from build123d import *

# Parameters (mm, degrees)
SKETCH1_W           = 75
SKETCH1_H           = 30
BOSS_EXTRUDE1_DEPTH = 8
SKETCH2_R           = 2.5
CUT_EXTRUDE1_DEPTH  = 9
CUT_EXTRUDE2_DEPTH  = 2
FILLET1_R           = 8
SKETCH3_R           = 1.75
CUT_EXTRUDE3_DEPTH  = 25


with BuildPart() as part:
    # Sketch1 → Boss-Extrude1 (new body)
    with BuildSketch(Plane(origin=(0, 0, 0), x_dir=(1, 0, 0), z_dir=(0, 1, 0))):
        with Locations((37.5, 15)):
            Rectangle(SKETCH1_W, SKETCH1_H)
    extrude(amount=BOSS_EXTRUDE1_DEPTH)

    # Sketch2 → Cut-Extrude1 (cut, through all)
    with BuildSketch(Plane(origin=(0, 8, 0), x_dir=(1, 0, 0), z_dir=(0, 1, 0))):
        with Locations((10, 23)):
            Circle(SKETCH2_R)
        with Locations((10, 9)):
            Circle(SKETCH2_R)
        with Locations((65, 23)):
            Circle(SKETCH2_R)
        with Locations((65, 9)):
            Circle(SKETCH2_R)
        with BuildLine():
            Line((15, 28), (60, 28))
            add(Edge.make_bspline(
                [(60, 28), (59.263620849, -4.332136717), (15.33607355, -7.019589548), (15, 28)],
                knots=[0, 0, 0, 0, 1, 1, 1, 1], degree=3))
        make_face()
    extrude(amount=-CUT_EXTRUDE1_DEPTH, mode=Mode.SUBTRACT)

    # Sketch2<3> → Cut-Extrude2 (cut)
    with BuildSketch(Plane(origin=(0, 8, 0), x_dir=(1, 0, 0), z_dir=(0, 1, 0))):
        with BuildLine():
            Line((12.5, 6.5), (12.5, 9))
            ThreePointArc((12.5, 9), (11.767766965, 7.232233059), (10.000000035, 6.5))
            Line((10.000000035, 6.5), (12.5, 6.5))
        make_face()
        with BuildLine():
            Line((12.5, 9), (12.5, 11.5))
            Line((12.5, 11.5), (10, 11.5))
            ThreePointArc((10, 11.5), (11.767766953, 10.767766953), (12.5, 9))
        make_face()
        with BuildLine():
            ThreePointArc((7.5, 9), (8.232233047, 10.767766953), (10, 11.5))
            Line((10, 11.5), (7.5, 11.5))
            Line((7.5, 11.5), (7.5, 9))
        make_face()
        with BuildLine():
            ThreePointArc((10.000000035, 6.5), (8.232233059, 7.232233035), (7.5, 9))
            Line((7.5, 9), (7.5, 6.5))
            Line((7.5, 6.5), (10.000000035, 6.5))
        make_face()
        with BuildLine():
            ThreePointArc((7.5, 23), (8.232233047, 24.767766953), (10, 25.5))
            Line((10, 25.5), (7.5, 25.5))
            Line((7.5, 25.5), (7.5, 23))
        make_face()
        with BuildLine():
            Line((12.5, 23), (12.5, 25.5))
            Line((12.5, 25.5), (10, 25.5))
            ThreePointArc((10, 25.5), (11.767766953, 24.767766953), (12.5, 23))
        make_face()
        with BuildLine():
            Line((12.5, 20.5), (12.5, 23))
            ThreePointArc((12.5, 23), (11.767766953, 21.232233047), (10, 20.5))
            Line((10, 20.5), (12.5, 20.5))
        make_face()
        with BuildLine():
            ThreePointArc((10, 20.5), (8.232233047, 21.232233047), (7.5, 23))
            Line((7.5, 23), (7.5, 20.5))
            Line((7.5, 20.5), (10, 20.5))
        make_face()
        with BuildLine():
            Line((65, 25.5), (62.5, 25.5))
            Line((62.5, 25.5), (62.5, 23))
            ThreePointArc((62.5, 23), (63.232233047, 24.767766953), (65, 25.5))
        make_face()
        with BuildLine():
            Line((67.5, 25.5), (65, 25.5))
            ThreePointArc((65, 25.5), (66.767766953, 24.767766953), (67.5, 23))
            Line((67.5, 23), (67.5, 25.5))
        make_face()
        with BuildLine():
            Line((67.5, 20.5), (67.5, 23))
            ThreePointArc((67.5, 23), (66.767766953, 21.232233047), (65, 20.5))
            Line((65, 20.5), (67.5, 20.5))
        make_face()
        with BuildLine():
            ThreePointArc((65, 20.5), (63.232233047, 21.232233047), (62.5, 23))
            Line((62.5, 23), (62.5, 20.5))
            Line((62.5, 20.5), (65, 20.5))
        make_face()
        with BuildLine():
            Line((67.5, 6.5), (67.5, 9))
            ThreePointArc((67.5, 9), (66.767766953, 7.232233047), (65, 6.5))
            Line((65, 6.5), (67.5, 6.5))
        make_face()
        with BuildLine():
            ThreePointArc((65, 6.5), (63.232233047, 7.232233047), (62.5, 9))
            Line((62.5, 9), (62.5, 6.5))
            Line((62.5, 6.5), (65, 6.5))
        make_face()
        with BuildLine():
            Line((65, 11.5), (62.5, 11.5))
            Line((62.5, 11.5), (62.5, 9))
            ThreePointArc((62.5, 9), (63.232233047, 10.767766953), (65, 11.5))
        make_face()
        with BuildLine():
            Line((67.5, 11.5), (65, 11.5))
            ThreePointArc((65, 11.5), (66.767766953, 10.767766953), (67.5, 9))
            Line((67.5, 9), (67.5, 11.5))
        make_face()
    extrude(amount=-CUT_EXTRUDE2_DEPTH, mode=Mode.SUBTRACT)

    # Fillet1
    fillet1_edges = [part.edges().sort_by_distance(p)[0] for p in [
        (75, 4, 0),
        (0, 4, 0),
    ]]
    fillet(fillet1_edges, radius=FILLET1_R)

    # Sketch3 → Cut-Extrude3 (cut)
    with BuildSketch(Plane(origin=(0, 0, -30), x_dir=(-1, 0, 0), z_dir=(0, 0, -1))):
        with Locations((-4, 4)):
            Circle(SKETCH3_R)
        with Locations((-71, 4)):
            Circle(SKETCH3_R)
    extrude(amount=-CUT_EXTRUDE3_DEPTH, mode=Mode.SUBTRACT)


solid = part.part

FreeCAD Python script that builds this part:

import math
import FreeCAD as App
import Part
import Sketcher
Q = App.Units.Quantity


def edges_at(feature, points):
    """Names of the edges that pass closest to the given points."""
    edges = feature.Shape.Edges
    near = lambda p: min(range(len(edges)), key=lambda i: edges[i].distToShape(Part.Vertex(*p))[0])
    return sorted({f"Edge{near(p) + 1}" for p in points})


def add_polygon(sketch, points):
    """Adds a closed chain of lines whose ends are joined by coincident constraints."""
    first, n = sketch.GeometryCount, len(points)
    for a, b in zip(points, points[1:] + points[:1]):
        sketch.addGeometry(Part.LineSegment(App.Vector(*a, 0), App.Vector(*b, 0)), False)
    for i in range(n):
        sketch.addConstraint(Sketcher.Constraint("Coincident", first + i, 2, first + (i + 1) % n, 1))

doc = App.newDocument("Part")
body = doc.addObject("PartDesign::Body", "Body")

# Sketch on XZ plane
sketch1 = doc.addObject("Sketcher::SketchObject", "Sketch")
body.addObject(sketch1)
sketch1.AttachmentSupport = (doc.XZ_Plane, [""])
sketch1.MapMode = "FlatFace"
add_polygon(sketch1, [(0, -30), (0, 0), (75, 0), (75, -30)])  # lines 0-3
sketch1.addConstraint([
    Sketcher.Constraint("Vertical", 0),
    Sketcher.Constraint("Horizontal", 1),
    Sketcher.Constraint("Vertical", 2),
    Sketcher.Constraint("Horizontal", 3),
    Sketcher.Constraint("Coincident", 0, 2, -1, 1),
    Sketcher.Constraint("DistanceX", 1, 1, 1, 2, Q("75 mm")),
    Sketcher.Constraint("DistanceY", 0, 1, 0, 2, Q("30 mm")),
])
pad1 = doc.addObject("PartDesign::Pad", "Pad")
body.addObject(pad1)
pad1.Profile = sketch1
pad1.Length = 8
pad1.Reversed = True

# Sketch on XZ plane
sketch2 = doc.addObject("Sketcher::SketchObject", "Sketch001")
body.addObject(sketch2)
sketch2.AttachmentSupport = (doc.XZ_Plane, [""])
sketch2.MapMode = "FlatFace"
sketch2.AttachmentOffset = App.Placement(App.Vector(0, 0, -8), App.Rotation())
sketch2.addGeometry([
    Part.Circle(App.Vector(10, -23, 0), App.Vector(0, 0, 1), 2.5),  # 0
    Part.Circle(App.Vector(10, -9, 0), App.Vector(0, 0, 1), 2.5),  # 1
    Part.Circle(App.Vector(65, -23, 0), App.Vector(0, 0, 1), 2.5),  # 2
    Part.Circle(App.Vector(65, -9, 0), App.Vector(0, 0, 1), 2.5),  # 3
    Part.LineSegment(App.Vector(60, -28, 0), App.Vector(15, -28, 0)),  # 4
    Part.BSplineCurve([App.Vector(60, -28, 0), App.Vector(59.263621, 4.332137, 0), App.Vector(15.336074, 7.01959, 0), App.Vector(15, -28, 0)], [4, 4], [0, 1], False, 3, [1, 1, 1, 1], False),  # 5
], False)
sketch2.addConstraint([
    Sketcher.Constraint("Block", 5),
    Sketcher.Constraint("Coincident", 4, 1, 5, 1),
    Sketcher.Constraint("Coincident", 5, 2, 4, 2),
    Sketcher.Constraint("Equal", 0, 1),
    Sketcher.Constraint("Equal", 1, 2),
    Sketcher.Constraint("Equal", 2, 3),
    Sketcher.Constraint("Horizontal", 0, 3, 2, 3),
    Sketcher.Constraint("Horizontal", 1, 3, 3, 3),
    Sketcher.Constraint("Vertical", 0, 3, 1, 3),
    Sketcher.Constraint("Vertical", 2, 3, 3, 3),
    Sketcher.Constraint("Diameter", 0, Q("5 mm")),
    Sketcher.Constraint("DistanceX", -1, 1, 0, 3, Q("10 mm")),
    Sketcher.Constraint("DistanceY", 0, 3, -1, 1, Q("23 mm")),
    Sketcher.Constraint("DistanceY", 1, 3, -1, 1, Q("9 mm")),
    Sketcher.Constraint("DistanceX", -1, 1, 2, 3, Q("65 mm")),
])
pocket1 = doc.addObject("PartDesign::Pocket", "Pocket")
body.addObject(pocket1)
pocket1.Profile = sketch2
pocket1.Type = "ThroughAll"
pocket1.Reversed = True

# Sketch on XZ plane
sketch3 = doc.addObject("Sketcher::SketchObject", "Sketch002")
body.addObject(sketch3)
sketch3.AttachmentSupport = (doc.XZ_Plane, [""])
sketch3.MapMode = "FlatFace"
sketch3.AttachmentOffset = App.Placement(App.Vector(0, 0, -8), App.Rotation())
sketch3.addGeometry([
    Part.LineSegment(App.Vector(12.5, -6.5, 0), App.Vector(12.5, -9, 0)),  # 0
    Part.ArcOfCircle(Part.Circle(App.Vector(10, -9, 0), App.Vector(0, 0, 1), 2.5), math.radians(0), math.radians(90)),  # 1
    Part.LineSegment(App.Vector(10, -6.5, 0), App.Vector(12.5, -6.5, 0)),  # 2
    Part.LineSegment(App.Vector(12.5, -9, 0), App.Vector(12.5, -11.5, 0)),  # 3
    Part.LineSegment(App.Vector(12.5, -11.5, 0), App.Vector(10, -11.5, 0)),  # 4
    Part.ArcOfCircle(Part.Circle(App.Vector(10, -9, 0), App.Vector(0, 0, 1), 2.5), math.radians(-90), math.radians(0)),  # 5
    Part.ArcOfCircle(Part.Circle(App.Vector(10, -9, 0), App.Vector(0, 0, 1), 2.5), math.radians(180), math.radians(270)),  # 6
    Part.LineSegment(App.Vector(10, -11.5, 0), App.Vector(7.5, -11.5, 0)),  # 7
    Part.LineSegment(App.Vector(7.5, -11.5, 0), App.Vector(7.5, -9, 0)),  # 8
    Part.ArcOfCircle(Part.Circle(App.Vector(10, -9, 0), App.Vector(0, 0, 1), 2.5), math.radians(90), math.radians(180)),  # 9
    Part.LineSegment(App.Vector(7.5, -9, 0), App.Vector(7.5, -6.5, 0)),  # 10
    Part.LineSegment(App.Vector(7.5, -6.5, 0), App.Vector(10, -6.5, 0)),  # 11
    Part.ArcOfCircle(Part.Circle(App.Vector(10, -23, 0), App.Vector(0, 0, 1), 2.5), math.radians(180), math.radians(270)),  # 12
    Part.LineSegment(App.Vector(10, -25.5, 0), App.Vector(7.5, -25.5, 0)),  # 13
    Part.LineSegment(App.Vector(7.5, -25.5, 0), App.Vector(7.5, -23, 0)),  # 14
    Part.LineSegment(App.Vector(12.5, -23, 0), App.Vector(12.5, -25.5, 0)),  # 15
    Part.LineSegment(App.Vector(12.5, -25.5, 0), App.Vector(10, -25.5, 0)),  # 16
    Part.ArcOfCircle(Part.Circle(App.Vector(10, -23, 0), App.Vector(0, 0, 1), 2.5), math.radians(-90), math.radians(0)),  # 17
    Part.LineSegment(App.Vector(12.5, -20.5, 0), App.Vector(12.5, -23, 0)),  # 18
    Part.ArcOfCircle(Part.Circle(App.Vector(10, -23, 0), App.Vector(0, 0, 1), 2.5), math.radians(0), math.radians(90)),  # 19
    Part.LineSegment(App.Vector(10, -20.5, 0), App.Vector(12.5, -20.5, 0)),  # 20
    Part.ArcOfCircle(Part.Circle(App.Vector(10, -23, 0), App.Vector(0, 0, 1), 2.5), math.radians(90), math.radians(180)),  # 21
    Part.LineSegment(App.Vector(7.5, -23, 0), App.Vector(7.5, -20.5, 0)),  # 22
    Part.LineSegment(App.Vector(7.5, -20.5, 0), App.Vector(10, -20.5, 0)),  # 23
    Part.LineSegment(App.Vector(65, -25.5, 0), App.Vector(62.5, -25.5, 0)),  # 24
    Part.LineSegment(App.Vector(62.5, -25.5, 0), App.Vector(62.5, -23, 0)),  # 25
    Part.ArcOfCircle(Part.Circle(App.Vector(65, -23, 0), App.Vector(0, 0, 1), 2.5), math.radians(180), math.radians(270)),  # 26
    Part.LineSegment(App.Vector(67.5, -25.5, 0), App.Vector(65, -25.5, 0)),  # 27
    Part.ArcOfCircle(Part.Circle(App.Vector(65, -23, 0), App.Vector(0, 0, 1), 2.5), math.radians(-90), math.radians(0)),  # 28
    Part.LineSegment(App.Vector(67.5, -23, 0), App.Vector(67.5, -25.5, 0)),  # 29
    Part.LineSegment(App.Vector(67.5, -20.5, 0), App.Vector(67.5, -23, 0)),  # 30
    Part.ArcOfCircle(Part.Circle(App.Vector(65, -23, 0), App.Vector(0, 0, 1), 2.5), math.radians(0), math.radians(90)),  # 31
    Part.LineSegment(App.Vector(65, -20.5, 0), App.Vector(67.5, -20.5, 0)),  # 32
    Part.ArcOfCircle(Part.Circle(App.Vector(65, -23, 0), App.Vector(0, 0, 1), 2.5), math.radians(90), math.radians(180)),  # 33
    Part.LineSegment(App.Vector(62.5, -23, 0), App.Vector(62.5, -20.5, 0)),  # 34
    Part.LineSegment(App.Vector(62.5, -20.5, 0), App.Vector(65, -20.5, 0)),  # 35
    Part.LineSegment(App.Vector(67.5, -6.5, 0), App.Vector(67.5, -9, 0)),  # 36
    Part.ArcOfCircle(Part.Circle(App.Vector(65, -9, 0), App.Vector(0, 0, 1), 2.5), math.radians(0), math.radians(90)),  # 37
    Part.LineSegment(App.Vector(65, -6.5, 0), App.Vector(67.5, -6.5, 0)),  # 38
    Part.ArcOfCircle(Part.Circle(App.Vector(65, -9, 0), App.Vector(0, 0, 1), 2.5), math.radians(90), math.radians(180)),  # 39
    Part.LineSegment(App.Vector(62.5, -9, 0), App.Vector(62.5, -6.5, 0)),  # 40
    Part.LineSegment(App.Vector(62.5, -6.5, 0), App.Vector(65, -6.5, 0)),  # 41
    Part.LineSegment(App.Vector(65, -11.5, 0), App.Vector(62.5, -11.5, 0)),  # 42
    Part.LineSegment(App.Vector(62.5, -11.5, 0), App.Vector(62.5, -9, 0)),  # 43
    Part.ArcOfCircle(Part.Circle(App.Vector(65, -9, 0), App.Vector(0, 0, 1), 2.5), math.radians(180), math.radians(270)),  # 44
    Part.LineSegment(App.Vector(67.5, -11.5, 0), App.Vector(65, -11.5, 0)),  # 45
    Part.ArcOfCircle(Part.Circle(App.Vector(65, -9, 0), App.Vector(0, 0, 1), 2.5), math.radians(-90), math.radians(0)),  # 46
    Part.LineSegment(App.Vector(67.5, -9, 0), App.Vector(67.5, -11.5, 0)),  # 47
], False)
sketch3.addConstraint([
    Sketcher.Constraint("Tangent", 0, 2, 1, 1),
    Sketcher.Constraint("Tangent", 1, 2, 2, 1),
    Sketcher.Constraint("Coincident", 2, 2, 0, 1),
    Sketcher.Constraint("Coincident", 3, 2, 4, 1),
    Sketcher.Constraint("Tangent", 4, 2, 5, 1),
    Sketcher.Constraint("Tangent", 5, 2, 3, 1),
    Sketcher.Constraint("Tangent", 6, 2, 7, 1),
    Sketcher.Constraint("Coincident", 7, 2, 8, 1),
    Sketcher.Constraint("Tangent", 8, 2, 6, 1),
    Sketcher.Constraint("Tangent", 9, 2, 10, 1),
    Sketcher.Constraint("Coincident", 10, 2, 11, 1),
    Sketcher.Constraint("Tangent", 11, 2, 9, 1),
    Sketcher.Constraint("Tangent", 12, 2, 13, 1),
    Sketcher.Constraint("Coincident", 13, 2, 14, 1),
    Sketcher.Constraint("Tangent", 14, 2, 12, 1),
    Sketcher.Constraint("Coincident", 15, 2, 16, 1),
    Sketcher.Constraint("Tangent", 16, 2, 17, 1),
    Sketcher.Constraint("Tangent", 17, 2, 15, 1),
    Sketcher.Constraint("Tangent", 18, 2, 19, 1),
    Sketcher.Constraint("Tangent", 19, 2, 20, 1),
    Sketcher.Constraint("Coincident", 20, 2, 18, 1),
    Sketcher.Constraint("Tangent", 21, 2, 22, 1),
    Sketcher.Constraint("Coincident", 22, 2, 23, 1),
    Sketcher.Constraint("Tangent", 23, 2, 21, 1),
    Sketcher.Constraint("Coincident", 24, 2, 25, 1),
    Sketcher.Constraint("Tangent", 25, 2, 26, 1),
    Sketcher.Constraint("Tangent", 26, 2, 24, 1),
    Sketcher.Constraint("Tangent", 27, 2, 28, 1),
    Sketcher.Constraint("Tangent", 28, 2, 29, 1),
    Sketcher.Constraint("Coincident", 29, 2, 27, 1),
    Sketcher.Constraint("Tangent", 30, 2, 31, 1),
    Sketcher.Constraint("Tangent", 31, 2, 32, 1),
    Sketcher.Constraint("Coincident", 32, 2, 30, 1),
    Sketcher.Constraint("Tangent", 33, 2, 34, 1),
    Sketcher.Constraint("Coincident", 34, 2, 35, 1),
    Sketcher.Constraint("Tangent", 35, 2, 33, 1),
    Sketcher.Constraint("Tangent", 36, 2, 37, 1),
    Sketcher.Constraint("Tangent", 37, 2, 38, 1),
    Sketcher.Constraint("Coincident", 38, 2, 36, 1),
    Sketcher.Constraint("Tangent", 39, 2, 40, 1),
    Sketcher.Constraint("Coincident", 40, 2, 41, 1),
    Sketcher.Constraint("Tangent", 41, 2, 39, 1),
    Sketcher.Constraint("Coincident", 42, 2, 43, 1),
    Sketcher.Constraint("Tangent", 43, 2, 44, 1),
    Sketcher.Constraint("Tangent", 44, 2, 42, 1),
    Sketcher.Constraint("Tangent", 45, 2, 46, 1),
    Sketcher.Constraint("Tangent", 46, 2, 47, 1),
    Sketcher.Constraint("Coincident", 47, 2, 45, 1),
    Sketcher.Constraint("Vertical", 0),
    Sketcher.Constraint("Horizontal", 2),
    Sketcher.Constraint("Vertical", 3),
    Sketcher.Constraint("Horizontal", 4),
    Sketcher.Constraint("Horizontal", 7),
    Sketcher.Constraint("Vertical", 8),
    Sketcher.Constraint("Vertical", 10),
    Sketcher.Constraint("Horizontal", 11),
    Sketcher.Constraint("Horizontal", 13),
    Sketcher.Constraint("Vertical", 14),
    Sketcher.Constraint("Vertical", 15),
    Sketcher.Constraint("Horizontal", 16),
    Sketcher.Constraint("Vertical", 18),
    Sketcher.Constraint("Horizontal", 20),
    Sketcher.Constraint("Vertical", 22),
    Sketcher.Constraint("Horizontal", 23),
    Sketcher.Constraint("Horizontal", 24),
    Sketcher.Constraint("Vertical", 25),
    Sketcher.Constraint("Horizontal", 27),
    Sketcher.Constraint("Vertical", 29),
    Sketcher.Constraint("Vertical", 30),
    Sketcher.Constraint("Horizontal", 32),
    Sketcher.Constraint("Vertical", 34),
    Sketcher.Constraint("Horizontal", 35),
    Sketcher.Constraint("Vertical", 36),
    Sketcher.Constraint("Horizontal", 38),
    Sketcher.Constraint("Vertical", 40),
    Sketcher.Constraint("Horizontal", 41),
    Sketcher.Constraint("Horizontal", 42),
    Sketcher.Constraint("Vertical", 43),
    Sketcher.Constraint("Horizontal", 45),
    Sketcher.Constraint("Vertical", 47),
    Sketcher.Constraint("Coincident", 5, 3, 1, 3),
    Sketcher.Constraint("Coincident", 6, 3, 1, 3),
    Sketcher.Constraint("Coincident", 9, 3, 1, 3),
    Sketcher.Constraint("Coincident", 17, 3, 12, 3),
    Sketcher.Constraint("Coincident", 19, 3, 12, 3),
    Sketcher.Constraint("Coincident", 21, 3, 12, 3),
    Sketcher.Constraint("Coincident", 28, 3, 26, 3),
    Sketcher.Constraint("Coincident", 31, 3, 26, 3),
    Sketcher.Constraint("Coincident", 33, 3, 26, 3),
    Sketcher.Constraint("Coincident", 39, 3, 37, 3),
    Sketcher.Constraint("Coincident", 44, 3, 37, 3),
    Sketcher.Constraint("Coincident", 46, 3, 37, 3),
    Sketcher.Constraint("Equal", 1, 5),
    Sketcher.Constraint("Equal", 5, 6),
    Sketcher.Constraint("Equal", 6, 9),
    Sketcher.Constraint("Equal", 9, 12),
    Sketcher.Constraint("Equal", 12, 17),
    Sketcher.Constraint("Equal", 17, 19),
    Sketcher.Constraint("Equal", 19, 21),
    Sketcher.Constraint("Equal", 21, 26),
    Sketcher.Constraint("Equal", 26, 28),
    Sketcher.Constraint("Equal", 28, 31),
    Sketcher.Constraint("Equal", 31, 33),
    Sketcher.Constraint("Equal", 33, 37),
    Sketcher.Constraint("Equal", 37, 39),
    Sketcher.Constraint("Equal", 39, 44),
    Sketcher.Constraint("Equal", 44, 46),
    Sketcher.Constraint("Horizontal", 21, 3, 26, 3),
    Sketcher.Constraint("Horizontal", 9, 3, 37, 3),
    Sketcher.Constraint("Vertical", 9, 3, 12, 3),
    Sketcher.Constraint("Vertical", 33, 3, 37, 3),
    Sketcher.Constraint("Radius", 1, Q("2.5 mm")),
    Sketcher.Constraint("DistanceX", -1, 1, 1, 3, Q("10 mm")),
    Sketcher.Constraint("DistanceY", 1, 3, -1, 1, Q("9 mm")),
    Sketcher.Constraint("DistanceY", 12, 3, -1, 1, Q("23 mm")),
    Sketcher.Constraint("DistanceX", -1, 1, 26, 3, Q("65 mm")),
])
pocket2 = doc.addObject("PartDesign::Pocket", "Pocket001")
body.addObject(pocket2)
pocket2.Profile = sketch3
pocket2.Length = 2
pocket2.Reversed = True
doc.recompute()

fillet = doc.addObject("PartDesign::Fillet", "Fillet")
body.addObject(fillet)
fillet.Base = (pocket2, edges_at(pocket2, [(75, 4, 0), (0, 4, 0)]))
fillet.Radius = 8

# Sketch on XY plane
sketch4 = doc.addObject("Sketcher::SketchObject", "Sketch003")
body.addObject(sketch4)
sketch4.AttachmentSupport = (doc.XY_Plane, [""])
sketch4.MapMode = "FlatFace"
sketch4.AttachmentOffset = App.Placement(App.Vector(0, 0, -30), App.Rotation())
sketch4.addGeometry([
    Part.Circle(App.Vector(4, 4, 0), App.Vector(0, 0, 1), 1.8),
    Part.Circle(App.Vector(71, 4, 0), App.Vector(0, 0, 1), 1.8),
], False)
sketch4.addConstraint([
    Sketcher.Constraint("Equal", 0, 1),
    Sketcher.Constraint("Horizontal", 0, 3, 1, 3),
    Sketcher.Constraint("Diameter", 0, Q("3.5 mm")),
    Sketcher.Constraint("DistanceX", -1, 1, 0, 3, Q("4 mm")),
    Sketcher.Constraint("DistanceY", -1, 1, 0, 3, Q("4 mm")),
    Sketcher.Constraint("DistanceX", -1, 1, 1, 3, Q("71 mm")),
])
pocket3 = doc.addObject("PartDesign::Pocket", "Pocket002")
body.addObject(pocket3)
pocket3.Profile = sketch4
pocket3.Length = 25
pocket3.Reversed = True

doc.recompute()
